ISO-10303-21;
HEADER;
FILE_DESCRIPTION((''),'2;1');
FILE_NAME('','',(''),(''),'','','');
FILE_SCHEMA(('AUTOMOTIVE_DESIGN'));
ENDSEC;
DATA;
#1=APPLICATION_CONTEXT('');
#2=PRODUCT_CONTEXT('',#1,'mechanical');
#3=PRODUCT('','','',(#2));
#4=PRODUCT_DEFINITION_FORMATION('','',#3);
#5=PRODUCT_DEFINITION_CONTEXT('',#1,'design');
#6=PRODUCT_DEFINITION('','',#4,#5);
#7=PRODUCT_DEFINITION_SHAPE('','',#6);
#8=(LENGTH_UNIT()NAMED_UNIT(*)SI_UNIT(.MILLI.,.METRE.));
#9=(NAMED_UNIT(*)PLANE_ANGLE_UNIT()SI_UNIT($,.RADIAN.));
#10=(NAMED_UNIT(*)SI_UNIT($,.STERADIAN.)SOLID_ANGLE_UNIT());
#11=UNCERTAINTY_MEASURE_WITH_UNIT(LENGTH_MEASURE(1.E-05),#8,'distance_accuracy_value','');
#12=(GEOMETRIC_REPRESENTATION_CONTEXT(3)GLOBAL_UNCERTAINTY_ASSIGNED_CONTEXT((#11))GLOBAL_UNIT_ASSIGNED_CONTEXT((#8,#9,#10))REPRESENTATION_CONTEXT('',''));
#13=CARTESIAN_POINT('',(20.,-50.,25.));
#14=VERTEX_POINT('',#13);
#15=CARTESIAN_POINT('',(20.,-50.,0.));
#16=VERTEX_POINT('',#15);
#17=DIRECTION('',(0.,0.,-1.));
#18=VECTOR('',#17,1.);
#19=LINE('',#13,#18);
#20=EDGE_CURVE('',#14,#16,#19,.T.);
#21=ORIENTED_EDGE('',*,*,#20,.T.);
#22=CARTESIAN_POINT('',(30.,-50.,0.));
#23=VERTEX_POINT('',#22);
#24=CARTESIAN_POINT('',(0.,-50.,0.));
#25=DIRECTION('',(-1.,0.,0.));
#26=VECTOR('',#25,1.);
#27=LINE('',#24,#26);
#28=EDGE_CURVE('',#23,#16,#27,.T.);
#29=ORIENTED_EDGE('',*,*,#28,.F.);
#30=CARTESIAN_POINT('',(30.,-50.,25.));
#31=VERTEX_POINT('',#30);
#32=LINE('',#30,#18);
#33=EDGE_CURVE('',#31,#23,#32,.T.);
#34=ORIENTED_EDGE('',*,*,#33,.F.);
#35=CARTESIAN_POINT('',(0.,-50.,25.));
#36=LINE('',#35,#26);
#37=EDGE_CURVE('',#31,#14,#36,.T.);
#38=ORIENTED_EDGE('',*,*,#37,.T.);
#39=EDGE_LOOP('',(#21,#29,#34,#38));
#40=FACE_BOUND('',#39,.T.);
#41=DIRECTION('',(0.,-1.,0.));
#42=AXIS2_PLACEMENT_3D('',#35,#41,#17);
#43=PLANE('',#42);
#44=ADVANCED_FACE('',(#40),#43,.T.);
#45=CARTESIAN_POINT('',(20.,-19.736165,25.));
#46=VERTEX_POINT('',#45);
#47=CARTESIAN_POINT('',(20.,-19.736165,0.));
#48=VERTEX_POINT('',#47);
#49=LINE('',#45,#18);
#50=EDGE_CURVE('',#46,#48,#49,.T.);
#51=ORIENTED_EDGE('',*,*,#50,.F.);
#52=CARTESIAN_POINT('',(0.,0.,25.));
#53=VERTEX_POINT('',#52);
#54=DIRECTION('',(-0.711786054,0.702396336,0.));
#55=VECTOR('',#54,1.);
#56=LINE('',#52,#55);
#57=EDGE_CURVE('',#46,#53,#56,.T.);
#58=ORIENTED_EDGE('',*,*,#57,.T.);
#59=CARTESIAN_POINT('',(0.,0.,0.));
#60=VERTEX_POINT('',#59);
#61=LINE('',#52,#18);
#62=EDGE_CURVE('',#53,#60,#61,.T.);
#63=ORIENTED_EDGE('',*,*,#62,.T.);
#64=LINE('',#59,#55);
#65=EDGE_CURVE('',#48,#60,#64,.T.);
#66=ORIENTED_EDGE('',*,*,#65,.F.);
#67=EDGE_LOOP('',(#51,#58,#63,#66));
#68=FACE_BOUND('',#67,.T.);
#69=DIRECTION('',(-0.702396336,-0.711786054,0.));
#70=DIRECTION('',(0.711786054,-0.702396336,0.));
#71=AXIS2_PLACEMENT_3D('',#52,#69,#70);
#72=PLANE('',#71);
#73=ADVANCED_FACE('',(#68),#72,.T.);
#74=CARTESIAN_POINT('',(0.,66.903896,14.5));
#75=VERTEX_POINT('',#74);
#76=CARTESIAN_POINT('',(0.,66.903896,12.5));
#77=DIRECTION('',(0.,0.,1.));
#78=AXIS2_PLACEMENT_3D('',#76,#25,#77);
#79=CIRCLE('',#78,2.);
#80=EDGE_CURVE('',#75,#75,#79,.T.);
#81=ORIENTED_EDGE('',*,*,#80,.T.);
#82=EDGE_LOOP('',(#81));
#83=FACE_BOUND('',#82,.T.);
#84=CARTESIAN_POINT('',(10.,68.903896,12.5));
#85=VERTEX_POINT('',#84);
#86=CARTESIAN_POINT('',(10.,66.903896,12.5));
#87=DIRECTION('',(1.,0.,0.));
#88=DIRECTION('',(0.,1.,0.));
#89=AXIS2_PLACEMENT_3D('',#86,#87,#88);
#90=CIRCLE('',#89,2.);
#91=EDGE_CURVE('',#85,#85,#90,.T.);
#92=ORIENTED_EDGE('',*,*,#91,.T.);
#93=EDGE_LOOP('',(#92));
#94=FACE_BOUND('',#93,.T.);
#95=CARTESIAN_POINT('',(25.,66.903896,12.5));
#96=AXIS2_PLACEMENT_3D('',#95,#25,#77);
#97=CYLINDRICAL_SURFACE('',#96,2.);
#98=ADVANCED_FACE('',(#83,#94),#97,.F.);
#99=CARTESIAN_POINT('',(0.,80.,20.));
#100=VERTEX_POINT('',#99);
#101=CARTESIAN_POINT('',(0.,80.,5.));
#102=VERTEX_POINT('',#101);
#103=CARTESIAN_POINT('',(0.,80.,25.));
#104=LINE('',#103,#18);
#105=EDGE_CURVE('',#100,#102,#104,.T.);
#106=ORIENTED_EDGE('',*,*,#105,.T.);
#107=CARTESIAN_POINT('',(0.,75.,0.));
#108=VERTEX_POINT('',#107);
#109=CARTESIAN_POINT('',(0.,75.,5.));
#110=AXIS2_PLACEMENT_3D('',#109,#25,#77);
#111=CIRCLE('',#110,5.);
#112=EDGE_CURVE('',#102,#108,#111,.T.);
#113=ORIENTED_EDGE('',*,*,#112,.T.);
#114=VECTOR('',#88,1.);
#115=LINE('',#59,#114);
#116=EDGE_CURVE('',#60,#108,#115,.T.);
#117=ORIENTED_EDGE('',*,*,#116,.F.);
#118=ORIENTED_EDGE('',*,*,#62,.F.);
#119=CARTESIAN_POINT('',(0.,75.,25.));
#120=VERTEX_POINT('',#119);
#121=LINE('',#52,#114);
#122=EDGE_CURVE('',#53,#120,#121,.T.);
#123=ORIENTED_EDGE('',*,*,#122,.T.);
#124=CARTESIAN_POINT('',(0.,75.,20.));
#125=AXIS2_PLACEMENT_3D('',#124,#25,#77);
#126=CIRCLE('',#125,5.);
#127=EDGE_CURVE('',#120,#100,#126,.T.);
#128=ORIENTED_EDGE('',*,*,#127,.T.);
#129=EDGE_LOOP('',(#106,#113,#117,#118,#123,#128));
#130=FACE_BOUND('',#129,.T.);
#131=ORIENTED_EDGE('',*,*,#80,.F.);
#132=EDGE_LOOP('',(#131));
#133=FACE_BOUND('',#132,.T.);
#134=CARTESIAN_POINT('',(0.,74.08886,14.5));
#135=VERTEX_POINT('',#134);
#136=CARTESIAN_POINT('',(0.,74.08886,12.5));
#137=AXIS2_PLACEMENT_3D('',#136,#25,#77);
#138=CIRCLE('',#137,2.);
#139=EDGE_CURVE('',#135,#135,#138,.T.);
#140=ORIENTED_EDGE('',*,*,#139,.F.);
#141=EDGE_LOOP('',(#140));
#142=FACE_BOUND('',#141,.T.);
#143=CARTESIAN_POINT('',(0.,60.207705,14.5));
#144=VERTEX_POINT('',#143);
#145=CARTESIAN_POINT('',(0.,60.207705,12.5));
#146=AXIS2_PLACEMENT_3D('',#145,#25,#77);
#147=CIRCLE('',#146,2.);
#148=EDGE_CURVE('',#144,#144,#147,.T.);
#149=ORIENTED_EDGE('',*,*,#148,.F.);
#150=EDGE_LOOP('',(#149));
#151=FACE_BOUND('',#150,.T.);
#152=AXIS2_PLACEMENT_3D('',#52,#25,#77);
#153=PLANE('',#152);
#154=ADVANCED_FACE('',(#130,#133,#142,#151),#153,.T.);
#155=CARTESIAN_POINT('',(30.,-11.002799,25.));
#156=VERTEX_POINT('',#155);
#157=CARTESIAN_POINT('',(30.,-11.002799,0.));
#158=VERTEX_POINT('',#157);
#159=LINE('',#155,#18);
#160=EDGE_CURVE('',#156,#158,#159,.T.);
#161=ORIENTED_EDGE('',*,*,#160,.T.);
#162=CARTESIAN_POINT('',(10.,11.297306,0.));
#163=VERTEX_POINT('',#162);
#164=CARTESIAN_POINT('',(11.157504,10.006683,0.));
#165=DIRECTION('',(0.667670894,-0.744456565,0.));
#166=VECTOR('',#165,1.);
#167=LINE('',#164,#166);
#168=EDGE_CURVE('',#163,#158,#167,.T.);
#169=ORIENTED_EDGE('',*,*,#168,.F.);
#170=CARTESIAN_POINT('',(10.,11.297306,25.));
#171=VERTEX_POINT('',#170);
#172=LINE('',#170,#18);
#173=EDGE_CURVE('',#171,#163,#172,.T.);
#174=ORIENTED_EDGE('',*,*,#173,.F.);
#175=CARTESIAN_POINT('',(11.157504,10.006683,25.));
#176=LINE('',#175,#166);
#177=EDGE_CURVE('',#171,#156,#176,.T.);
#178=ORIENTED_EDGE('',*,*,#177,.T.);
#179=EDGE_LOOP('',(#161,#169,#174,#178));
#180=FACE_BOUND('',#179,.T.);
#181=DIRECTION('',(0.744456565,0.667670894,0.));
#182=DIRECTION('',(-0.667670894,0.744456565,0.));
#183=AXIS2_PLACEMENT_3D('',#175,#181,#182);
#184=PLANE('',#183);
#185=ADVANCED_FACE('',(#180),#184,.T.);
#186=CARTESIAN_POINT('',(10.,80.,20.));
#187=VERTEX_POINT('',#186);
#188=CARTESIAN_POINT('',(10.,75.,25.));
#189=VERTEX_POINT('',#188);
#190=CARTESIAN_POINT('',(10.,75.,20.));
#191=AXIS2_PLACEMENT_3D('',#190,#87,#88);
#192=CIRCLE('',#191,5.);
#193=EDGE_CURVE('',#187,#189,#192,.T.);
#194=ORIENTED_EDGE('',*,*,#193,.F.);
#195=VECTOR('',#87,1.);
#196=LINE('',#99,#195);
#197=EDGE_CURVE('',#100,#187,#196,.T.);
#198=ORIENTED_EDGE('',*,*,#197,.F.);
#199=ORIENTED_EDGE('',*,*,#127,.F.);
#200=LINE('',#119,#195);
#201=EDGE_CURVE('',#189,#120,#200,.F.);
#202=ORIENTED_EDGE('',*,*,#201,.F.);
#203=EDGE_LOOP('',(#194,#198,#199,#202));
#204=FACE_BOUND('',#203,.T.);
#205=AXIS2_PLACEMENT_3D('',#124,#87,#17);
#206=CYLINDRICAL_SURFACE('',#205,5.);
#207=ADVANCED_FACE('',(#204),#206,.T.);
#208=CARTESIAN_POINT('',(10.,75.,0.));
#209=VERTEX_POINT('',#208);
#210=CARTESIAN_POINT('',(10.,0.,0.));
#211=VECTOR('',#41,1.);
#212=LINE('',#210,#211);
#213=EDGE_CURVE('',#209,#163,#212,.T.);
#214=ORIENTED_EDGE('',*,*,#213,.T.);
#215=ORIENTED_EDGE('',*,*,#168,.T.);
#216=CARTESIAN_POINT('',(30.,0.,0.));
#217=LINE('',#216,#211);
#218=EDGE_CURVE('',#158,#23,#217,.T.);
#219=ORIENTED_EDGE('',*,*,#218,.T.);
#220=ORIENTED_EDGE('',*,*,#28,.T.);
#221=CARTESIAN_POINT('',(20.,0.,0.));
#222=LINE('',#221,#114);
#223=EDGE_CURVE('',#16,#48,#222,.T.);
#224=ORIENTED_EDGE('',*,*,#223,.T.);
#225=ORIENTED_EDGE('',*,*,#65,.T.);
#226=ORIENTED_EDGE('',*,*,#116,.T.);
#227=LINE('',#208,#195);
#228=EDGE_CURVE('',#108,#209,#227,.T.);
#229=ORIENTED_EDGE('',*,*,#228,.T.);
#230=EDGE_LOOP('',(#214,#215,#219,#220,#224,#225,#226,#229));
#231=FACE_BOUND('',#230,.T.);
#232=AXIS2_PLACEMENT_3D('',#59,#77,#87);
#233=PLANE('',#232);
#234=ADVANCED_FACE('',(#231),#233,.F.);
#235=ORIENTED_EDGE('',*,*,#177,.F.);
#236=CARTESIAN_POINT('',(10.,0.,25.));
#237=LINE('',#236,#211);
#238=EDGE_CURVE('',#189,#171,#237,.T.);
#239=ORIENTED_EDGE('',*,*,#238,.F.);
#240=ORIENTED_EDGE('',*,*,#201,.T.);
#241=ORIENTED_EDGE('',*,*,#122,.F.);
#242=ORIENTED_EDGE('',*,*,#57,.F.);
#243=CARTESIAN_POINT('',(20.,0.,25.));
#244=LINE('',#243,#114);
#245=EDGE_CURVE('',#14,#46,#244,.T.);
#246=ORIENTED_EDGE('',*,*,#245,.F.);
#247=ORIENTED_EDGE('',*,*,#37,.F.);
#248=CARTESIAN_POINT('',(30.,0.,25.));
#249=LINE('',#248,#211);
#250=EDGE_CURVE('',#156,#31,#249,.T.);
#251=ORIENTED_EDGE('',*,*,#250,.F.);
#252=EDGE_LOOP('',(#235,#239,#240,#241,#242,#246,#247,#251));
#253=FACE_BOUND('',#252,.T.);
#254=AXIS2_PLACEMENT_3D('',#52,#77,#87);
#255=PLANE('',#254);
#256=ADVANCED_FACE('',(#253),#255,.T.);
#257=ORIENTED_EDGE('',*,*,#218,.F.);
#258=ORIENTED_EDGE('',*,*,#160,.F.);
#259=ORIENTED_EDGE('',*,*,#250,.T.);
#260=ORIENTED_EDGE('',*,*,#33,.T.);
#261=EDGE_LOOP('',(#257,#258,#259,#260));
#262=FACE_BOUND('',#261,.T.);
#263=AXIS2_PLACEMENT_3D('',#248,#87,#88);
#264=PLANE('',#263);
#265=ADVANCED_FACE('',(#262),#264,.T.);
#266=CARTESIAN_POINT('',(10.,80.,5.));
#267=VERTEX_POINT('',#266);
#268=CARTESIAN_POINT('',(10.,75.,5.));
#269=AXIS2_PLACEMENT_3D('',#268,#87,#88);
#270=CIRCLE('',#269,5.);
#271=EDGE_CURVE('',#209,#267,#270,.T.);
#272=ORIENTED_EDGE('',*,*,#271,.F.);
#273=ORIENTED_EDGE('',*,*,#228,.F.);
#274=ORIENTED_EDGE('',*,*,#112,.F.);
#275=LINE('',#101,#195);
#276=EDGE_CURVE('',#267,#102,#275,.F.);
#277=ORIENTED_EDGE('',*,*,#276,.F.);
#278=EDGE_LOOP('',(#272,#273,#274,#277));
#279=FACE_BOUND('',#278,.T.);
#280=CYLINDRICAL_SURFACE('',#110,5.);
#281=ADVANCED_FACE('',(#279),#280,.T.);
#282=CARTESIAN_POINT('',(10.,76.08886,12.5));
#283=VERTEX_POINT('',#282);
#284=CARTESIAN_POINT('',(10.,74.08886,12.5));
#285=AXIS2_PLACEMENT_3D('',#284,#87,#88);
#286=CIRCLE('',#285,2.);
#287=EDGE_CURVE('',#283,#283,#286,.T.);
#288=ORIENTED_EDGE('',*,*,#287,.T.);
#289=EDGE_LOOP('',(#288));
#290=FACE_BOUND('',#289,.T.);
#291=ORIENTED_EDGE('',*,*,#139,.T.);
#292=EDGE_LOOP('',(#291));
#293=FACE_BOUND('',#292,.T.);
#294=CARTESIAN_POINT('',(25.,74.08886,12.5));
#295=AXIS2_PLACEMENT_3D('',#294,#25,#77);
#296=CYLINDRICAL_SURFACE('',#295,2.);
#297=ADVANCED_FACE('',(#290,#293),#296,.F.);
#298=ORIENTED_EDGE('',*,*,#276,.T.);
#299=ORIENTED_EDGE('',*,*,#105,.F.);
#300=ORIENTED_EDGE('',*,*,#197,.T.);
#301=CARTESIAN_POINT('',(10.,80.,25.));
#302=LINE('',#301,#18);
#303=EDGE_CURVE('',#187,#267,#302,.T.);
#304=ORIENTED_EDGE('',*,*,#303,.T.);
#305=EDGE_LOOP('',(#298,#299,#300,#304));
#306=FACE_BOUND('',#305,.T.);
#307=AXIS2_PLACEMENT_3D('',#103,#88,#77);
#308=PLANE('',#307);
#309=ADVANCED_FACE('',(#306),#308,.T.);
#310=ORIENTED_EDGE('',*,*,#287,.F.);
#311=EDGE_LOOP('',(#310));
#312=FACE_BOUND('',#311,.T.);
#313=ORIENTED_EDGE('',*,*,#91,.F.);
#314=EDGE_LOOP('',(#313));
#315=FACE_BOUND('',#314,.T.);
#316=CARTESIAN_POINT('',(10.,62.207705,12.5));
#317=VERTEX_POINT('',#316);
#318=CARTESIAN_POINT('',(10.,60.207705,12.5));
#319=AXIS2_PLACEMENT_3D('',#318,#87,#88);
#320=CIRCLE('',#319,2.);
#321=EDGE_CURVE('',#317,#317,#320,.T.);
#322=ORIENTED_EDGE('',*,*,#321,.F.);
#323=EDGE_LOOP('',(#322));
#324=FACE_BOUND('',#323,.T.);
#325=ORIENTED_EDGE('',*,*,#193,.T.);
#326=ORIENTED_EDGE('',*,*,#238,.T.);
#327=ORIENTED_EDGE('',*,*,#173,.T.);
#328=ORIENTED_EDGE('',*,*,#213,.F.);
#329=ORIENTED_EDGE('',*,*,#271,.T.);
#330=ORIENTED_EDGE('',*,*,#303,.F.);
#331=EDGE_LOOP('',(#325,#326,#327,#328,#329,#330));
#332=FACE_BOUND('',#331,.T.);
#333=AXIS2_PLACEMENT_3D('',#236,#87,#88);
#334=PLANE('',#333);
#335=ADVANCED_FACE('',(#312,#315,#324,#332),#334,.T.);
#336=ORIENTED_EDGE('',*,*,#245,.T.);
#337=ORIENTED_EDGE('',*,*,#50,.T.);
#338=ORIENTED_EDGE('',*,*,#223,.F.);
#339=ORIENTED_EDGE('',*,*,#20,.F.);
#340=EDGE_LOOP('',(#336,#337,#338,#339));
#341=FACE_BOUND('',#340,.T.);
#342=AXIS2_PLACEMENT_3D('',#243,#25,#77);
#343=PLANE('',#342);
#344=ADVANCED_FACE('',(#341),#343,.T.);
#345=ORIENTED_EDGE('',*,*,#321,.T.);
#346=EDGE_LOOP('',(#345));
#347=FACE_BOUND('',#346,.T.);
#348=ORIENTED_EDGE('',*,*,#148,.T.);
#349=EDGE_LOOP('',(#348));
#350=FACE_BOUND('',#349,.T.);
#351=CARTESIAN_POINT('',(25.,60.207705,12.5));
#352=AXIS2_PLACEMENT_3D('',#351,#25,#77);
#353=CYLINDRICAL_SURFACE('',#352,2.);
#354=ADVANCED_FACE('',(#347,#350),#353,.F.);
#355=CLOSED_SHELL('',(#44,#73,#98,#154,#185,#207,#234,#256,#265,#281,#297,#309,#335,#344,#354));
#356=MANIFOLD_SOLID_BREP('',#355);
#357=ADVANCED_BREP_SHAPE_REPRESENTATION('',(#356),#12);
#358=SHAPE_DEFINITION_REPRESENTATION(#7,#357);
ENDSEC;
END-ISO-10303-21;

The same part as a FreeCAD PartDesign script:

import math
import FreeCAD as App
import Part
import Sketcher

V = App.Vector


def edges_at(feature, points):
    """Names of the edges that pass closest to the given points."""
    edges = feature.Shape.Edges
    near = lambda p: min(range(len(edges)), key=lambda i: edges[i].distToShape(Part.Vertex(*p))[0])
    return sorted({f"Edge{near(p) + 1}" for p in points})


def add_polygon(sketch, points):
    """Adds a closed chain of lines whose ends are joined by coincident constraints."""
    first, n = sketch.GeometryCount, len(points)
    for a, b in zip(points, points[1:] + points[:1]):
        sketch.addGeometry(Part.LineSegment(App.Vector(*a, 0), App.Vector(*b, 0)), False)
    for i in range(n):
        sketch.addConstraint(Sketcher.Constraint("Coincident", first + i, 2, first + (i + 1) % n, 1))

doc = App.newDocument("Part")
body = doc.addObject("PartDesign::Body", "Body")

# Sketch on XY plane
sketch1 = body.newObject("Sketcher::SketchObject", "Sketch")
sketch1.AttachmentSupport = (doc.getObject("XY_Plane"), [""])
sketch1.MapMode = "FlatFace"
add_polygon(sketch1, [(30, -50), (30, -11), (10, 11), (10, 80), (0, 80), (0, 0), (20, -20), (20, -50)])  # lines 0-7
sketch1.addConstraint(Sketcher.Constraint("Vertical", 0))
sketch1.addConstraint(Sketcher.Constraint("Vertical", 2))
sketch1.addConstraint(Sketcher.Constraint("Horizontal", 3))
sketch1.addConstraint(Sketcher.Constraint("Vertical", 4))
sketch1.addConstraint(Sketcher.Constraint("Vertical", 6))
sketch1.addConstraint(Sketcher.Constraint("Horizontal", 7))
sketch1.addConstraint(Sketcher.Constraint("Coincident", 4, 2, -1, 1))
sketch1.addConstraint(Sketcher.Constraint("Equal", 3, 7))
sketch1.addConstraint(Sketcher.Constraint("DistanceX", 3, 2, 3, 1, 10.0))
sketch1.addConstraint(Sketcher.Constraint("DistanceY", 4, 2, 4, 1, 80.0))
sketch1.addConstraint(Sketcher.Constraint("DistanceX", -1, 1, 0, 2, 30.0))
sketch1.addConstraint(Sketcher.Constraint("DistanceY", 6, 2, -1, 1, 50.0))
sketch1.addConstraint(Sketcher.Constraint("DistanceY", 0, 1, 0, 2, 38.997201))
sketch1.addConstraint(Sketcher.Constraint("Distance", 5, 28.098331))
sketch1.addConstraint(Sketcher.Constraint("DistanceY", 2, 1, 2, 2, 68.702694))
pad1 = body.newObject("PartDesign::Pad", "Pad")
pad1.Profile = sketch1
pad1.Length = 25

# Sketch on YZ plane
sketch2 = body.newObject("Sketcher::SketchObject", "Sketch001")
sketch2.AttachmentSupport = (doc.getObject("YZ_Plane"), [""])
sketch2.MapMode = "FlatFace"
sketch2.addGeometry(Part.ArcOfCircle(Part.Circle(V(74.1, 12.5, 0), V(0, 0, 1), 2), math.radians(0), math.radians(90)), False)
sketch2.addGeometry(Part.ArcOfCircle(Part.Circle(V(74.1, 12.5, 0), V(0, 0, 1), 2), math.radians(180), math.radians(360)), False)
sketch2.addGeometry(Part.ArcOfCircle(Part.Circle(V(74.1, 12.5, 0), V(0, 0, 1), 2), math.radians(90), math.radians(180)), False)
sketch2.addGeometry(Part.ArcOfCircle(Part.Circle(V(66.9, 12.5, 0), V(0, 0, 1), 2), math.radians(0), math.radians(90)), False)
sketch2.addGeometry(Part.ArcOfCircle(Part.Circle(V(66.9, 12.5, 0), V(0, 0, 1), 2), math.radians(180), math.radians(360)), False)
sketch2.addGeometry(Part.ArcOfCircle(Part.Circle(V(66.9, 12.5, 0), V(0, 0, 1), 2), math.radians(90), math.radians(180)), False)
sketch2.addGeometry(Part.ArcOfCircle(Part.Circle(V(60.2, 12.5, 0), V(0, 0, 1), 2), math.radians(180), math.radians(360)), False)
sketch2.addGeometry(Part.ArcOfCircle(Part.Circle(V(60.2, 12.5, 0), V(0, 0, 1), 2), math.radians(90), math.radians(180)), False)
sketch2.addGeometry(Part.ArcOfCircle(Part.Circle(V(60.2, 12.5, 0), V(0, 0, 1), 2), math.radians(0), math.radians(90)), False)
sketch2.addConstraint(Sketcher.Constraint("Tangent", 0, 1, 1, 2))
sketch2.addConstraint(Sketcher.Constraint("Tangent", 1, 1, 2, 2))
sketch2.addConstraint(Sketcher.Constraint("Tangent", 2, 1, 0, 2))
sketch2.addConstraint(Sketcher.Constraint("Tangent", 3, 1, 4, 2))
sketch2.addConstraint(Sketcher.Constraint("Tangent", 4, 1, 5, 2))
sketch2.addConstraint(Sketcher.Constraint("Tangent", 5, 1, 3, 2))
sketch2.addConstraint(Sketcher.Constraint("Tangent", 6, 1, 7, 2))
sketch2.addConstraint(Sketcher.Constraint("Tangent", 7, 1, 8, 2))
sketch2.addConstraint(Sketcher.Constraint("Tangent", 8, 1, 6, 2))
sketch2.addConstraint(Sketcher.Constraint("Equal", 2, 3))
sketch2.addConstraint(Sketcher.Constraint("Equal", 5, 6))
sketch2.addConstraint(Sketcher.Constraint("Horizontal", 2, 3, 3, 3))
sketch2.addConstraint(Sketcher.Constraint("Horizontal", 5, 3, 6, 3))
sketch2.addConstraint(Sketcher.Constraint("Horizontal", 8, 3, 0, 1))
sketch2.addConstraint(Sketcher.Constraint("Horizontal", 0, 1, 1, 1))
sketch2.addConstraint(Sketcher.Constraint("Horizontal", 1, 1, 3, 1))
sketch2.addConstraint(Sketcher.Constraint("Horizontal", 3, 1, 4, 1))
sketch2.addConstraint(Sketcher.Constraint("Horizontal", 4, 1, 6, 1))
sketch2.addConstraint(Sketcher.Constraint("Horizontal", 6, 1, 8, 1))
sketch2.addConstraint(Sketcher.Constraint("Vertical", 1, 3, 2, 1))
sketch2.addConstraint(Sketcher.Constraint("Vertical", 4, 3, 5, 1))
sketch2.addConstraint(Sketcher.Constraint("Vertical", 8, 3, 7, 1))
sketch2.addConstraint(Sketcher.Constraint("Radius", 0, 2.0))
sketch2.addConstraint(Sketcher.Constraint("DistanceY", -1, 1, 0, 3, 12.5))
sketch2.addConstraint(Sketcher.Constraint("DistanceX", -1, 1, 0, 3, 74.08886))
sketch2.addConstraint(Sketcher.Constraint("DistanceX", 6, 3, 3, 3, 6.696191))
sketch2.addConstraint(Sketcher.Constraint("DistanceX", -1, 1, 3, 3, 66.903896))
pocket1 = body.newObject("PartDesign::Pocket", "Pocket")
pocket1.Profile = sketch2
pocket1.Length = 25
pocket1.Reversed = True
doc.recompute()

fillet = body.newObject("PartDesign::Fillet", "Fillet")
fillet.Base = (pocket1, edges_at(pocket1, [(5, 80, 25)]))
fillet.Radius = 5
doc.recompute()

fillet2 = body.newObject("PartDesign::Fillet", "Fillet001")
fillet2.Base = (fillet, edges_at(fillet, [(5, 80, 0)]))
fillet2.Radius = 5

doc.recompute()
